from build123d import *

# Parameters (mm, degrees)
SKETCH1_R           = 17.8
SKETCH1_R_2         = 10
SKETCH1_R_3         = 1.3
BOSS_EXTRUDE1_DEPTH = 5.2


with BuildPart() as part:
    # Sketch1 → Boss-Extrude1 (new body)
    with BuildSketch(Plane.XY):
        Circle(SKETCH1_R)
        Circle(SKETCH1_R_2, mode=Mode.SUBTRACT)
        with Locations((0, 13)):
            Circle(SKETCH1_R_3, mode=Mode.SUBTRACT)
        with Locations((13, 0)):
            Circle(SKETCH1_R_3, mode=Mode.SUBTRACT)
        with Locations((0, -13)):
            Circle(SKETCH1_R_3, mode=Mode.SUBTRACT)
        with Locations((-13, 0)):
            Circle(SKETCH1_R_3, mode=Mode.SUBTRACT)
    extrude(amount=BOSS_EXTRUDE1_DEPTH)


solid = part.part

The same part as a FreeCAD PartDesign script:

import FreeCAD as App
import Part
import Sketcher
from FreeCAD import Vector
Q = App.Units.Quantity

doc = App.newDocument("Part")
body = doc.addObject("PartDesign::Body", "Body")

sketch1 = body.newObject("Sketcher::SketchObject", "Sketch")
sketch1.AttachmentSupport = (doc.getObject("XY_Plane"), [""])
sketch1.MapMode = "FlatFace"
sketch1.addGeometry(Part.Circle(Vector(0, 0, 0), Vector(0, 0, 1), 17.8), False)
sketch1.addGeometry(Part.Circle(Vector(0, -13, 0), Vector(0, 0, 1), 1.3), False)
sketch1.addGeometry(Part.Circle(Vector(-13, 0, 0), Vector(0, 0, 1), 1.3), False)
sketch1.addGeometry(Part.Circle(Vector(0, 0, 0), Vector(0, 0, 1), 10), False)
sketch1.addGeometry(Part.Circle(Vector(13, 0, 0), Vector(0, 0, 1), 1.3), False)
sketch1.addGeometry(Part.Circle(Vector(0, 13, 0), Vector(0, 0, 1), 1.3), False)
sketch1.addConstraint(Sketcher.Constraint("Coincident", 0, 3, -1, 1))
sketch1.addConstraint(Sketcher.Constraint("Coincident", 3, 3, -1, 1))
sketch1.addConstraint(Sketcher.Constraint("Equal", 1, 2))
sketch1.addConstraint(Sketcher.Constraint("Equal", 2, 4))
sketch1.addConstraint(Sketcher.Constraint("Equal", 4, 5))
sketch1.addConstraint(Sketcher.Constraint("Symmetric", 2, 3, 4, 3, -1, 1))
sketch1.addConstraint(Sketcher.Constraint("Symmetric", 1, 3, 5, 3, -1, 1))
sketch1.addConstraint(Sketcher.Constraint("PointOnObject", 1, 3, -2))
sketch1.addConstraint(Sketcher.Constraint("PointOnObject", 2, 3, -1))
sketch1.addConstraint(Sketcher.Constraint("Diameter", 3, Q("20 mm")))
sketch1.addConstraint(Sketcher.Constraint("Diameter", 0, Q("35.6 mm")))
sketch1.addConstraint(Sketcher.Constraint("Diameter", 1, Q("2.6 mm")))
sketch1.addConstraint(Sketcher.Constraint("DistanceY", 1, 3, -1, 1, Q("13 mm")))
sketch1.addConstraint(Sketcher.Constraint("DistanceX", 2, 3, -1, 1, Q("13 mm")))
pad1 = body.newObject("PartDesign::Pad", "Pad")
pad1.Profile = sketch1
pad1.Length = 5.2

doc.recompute()
